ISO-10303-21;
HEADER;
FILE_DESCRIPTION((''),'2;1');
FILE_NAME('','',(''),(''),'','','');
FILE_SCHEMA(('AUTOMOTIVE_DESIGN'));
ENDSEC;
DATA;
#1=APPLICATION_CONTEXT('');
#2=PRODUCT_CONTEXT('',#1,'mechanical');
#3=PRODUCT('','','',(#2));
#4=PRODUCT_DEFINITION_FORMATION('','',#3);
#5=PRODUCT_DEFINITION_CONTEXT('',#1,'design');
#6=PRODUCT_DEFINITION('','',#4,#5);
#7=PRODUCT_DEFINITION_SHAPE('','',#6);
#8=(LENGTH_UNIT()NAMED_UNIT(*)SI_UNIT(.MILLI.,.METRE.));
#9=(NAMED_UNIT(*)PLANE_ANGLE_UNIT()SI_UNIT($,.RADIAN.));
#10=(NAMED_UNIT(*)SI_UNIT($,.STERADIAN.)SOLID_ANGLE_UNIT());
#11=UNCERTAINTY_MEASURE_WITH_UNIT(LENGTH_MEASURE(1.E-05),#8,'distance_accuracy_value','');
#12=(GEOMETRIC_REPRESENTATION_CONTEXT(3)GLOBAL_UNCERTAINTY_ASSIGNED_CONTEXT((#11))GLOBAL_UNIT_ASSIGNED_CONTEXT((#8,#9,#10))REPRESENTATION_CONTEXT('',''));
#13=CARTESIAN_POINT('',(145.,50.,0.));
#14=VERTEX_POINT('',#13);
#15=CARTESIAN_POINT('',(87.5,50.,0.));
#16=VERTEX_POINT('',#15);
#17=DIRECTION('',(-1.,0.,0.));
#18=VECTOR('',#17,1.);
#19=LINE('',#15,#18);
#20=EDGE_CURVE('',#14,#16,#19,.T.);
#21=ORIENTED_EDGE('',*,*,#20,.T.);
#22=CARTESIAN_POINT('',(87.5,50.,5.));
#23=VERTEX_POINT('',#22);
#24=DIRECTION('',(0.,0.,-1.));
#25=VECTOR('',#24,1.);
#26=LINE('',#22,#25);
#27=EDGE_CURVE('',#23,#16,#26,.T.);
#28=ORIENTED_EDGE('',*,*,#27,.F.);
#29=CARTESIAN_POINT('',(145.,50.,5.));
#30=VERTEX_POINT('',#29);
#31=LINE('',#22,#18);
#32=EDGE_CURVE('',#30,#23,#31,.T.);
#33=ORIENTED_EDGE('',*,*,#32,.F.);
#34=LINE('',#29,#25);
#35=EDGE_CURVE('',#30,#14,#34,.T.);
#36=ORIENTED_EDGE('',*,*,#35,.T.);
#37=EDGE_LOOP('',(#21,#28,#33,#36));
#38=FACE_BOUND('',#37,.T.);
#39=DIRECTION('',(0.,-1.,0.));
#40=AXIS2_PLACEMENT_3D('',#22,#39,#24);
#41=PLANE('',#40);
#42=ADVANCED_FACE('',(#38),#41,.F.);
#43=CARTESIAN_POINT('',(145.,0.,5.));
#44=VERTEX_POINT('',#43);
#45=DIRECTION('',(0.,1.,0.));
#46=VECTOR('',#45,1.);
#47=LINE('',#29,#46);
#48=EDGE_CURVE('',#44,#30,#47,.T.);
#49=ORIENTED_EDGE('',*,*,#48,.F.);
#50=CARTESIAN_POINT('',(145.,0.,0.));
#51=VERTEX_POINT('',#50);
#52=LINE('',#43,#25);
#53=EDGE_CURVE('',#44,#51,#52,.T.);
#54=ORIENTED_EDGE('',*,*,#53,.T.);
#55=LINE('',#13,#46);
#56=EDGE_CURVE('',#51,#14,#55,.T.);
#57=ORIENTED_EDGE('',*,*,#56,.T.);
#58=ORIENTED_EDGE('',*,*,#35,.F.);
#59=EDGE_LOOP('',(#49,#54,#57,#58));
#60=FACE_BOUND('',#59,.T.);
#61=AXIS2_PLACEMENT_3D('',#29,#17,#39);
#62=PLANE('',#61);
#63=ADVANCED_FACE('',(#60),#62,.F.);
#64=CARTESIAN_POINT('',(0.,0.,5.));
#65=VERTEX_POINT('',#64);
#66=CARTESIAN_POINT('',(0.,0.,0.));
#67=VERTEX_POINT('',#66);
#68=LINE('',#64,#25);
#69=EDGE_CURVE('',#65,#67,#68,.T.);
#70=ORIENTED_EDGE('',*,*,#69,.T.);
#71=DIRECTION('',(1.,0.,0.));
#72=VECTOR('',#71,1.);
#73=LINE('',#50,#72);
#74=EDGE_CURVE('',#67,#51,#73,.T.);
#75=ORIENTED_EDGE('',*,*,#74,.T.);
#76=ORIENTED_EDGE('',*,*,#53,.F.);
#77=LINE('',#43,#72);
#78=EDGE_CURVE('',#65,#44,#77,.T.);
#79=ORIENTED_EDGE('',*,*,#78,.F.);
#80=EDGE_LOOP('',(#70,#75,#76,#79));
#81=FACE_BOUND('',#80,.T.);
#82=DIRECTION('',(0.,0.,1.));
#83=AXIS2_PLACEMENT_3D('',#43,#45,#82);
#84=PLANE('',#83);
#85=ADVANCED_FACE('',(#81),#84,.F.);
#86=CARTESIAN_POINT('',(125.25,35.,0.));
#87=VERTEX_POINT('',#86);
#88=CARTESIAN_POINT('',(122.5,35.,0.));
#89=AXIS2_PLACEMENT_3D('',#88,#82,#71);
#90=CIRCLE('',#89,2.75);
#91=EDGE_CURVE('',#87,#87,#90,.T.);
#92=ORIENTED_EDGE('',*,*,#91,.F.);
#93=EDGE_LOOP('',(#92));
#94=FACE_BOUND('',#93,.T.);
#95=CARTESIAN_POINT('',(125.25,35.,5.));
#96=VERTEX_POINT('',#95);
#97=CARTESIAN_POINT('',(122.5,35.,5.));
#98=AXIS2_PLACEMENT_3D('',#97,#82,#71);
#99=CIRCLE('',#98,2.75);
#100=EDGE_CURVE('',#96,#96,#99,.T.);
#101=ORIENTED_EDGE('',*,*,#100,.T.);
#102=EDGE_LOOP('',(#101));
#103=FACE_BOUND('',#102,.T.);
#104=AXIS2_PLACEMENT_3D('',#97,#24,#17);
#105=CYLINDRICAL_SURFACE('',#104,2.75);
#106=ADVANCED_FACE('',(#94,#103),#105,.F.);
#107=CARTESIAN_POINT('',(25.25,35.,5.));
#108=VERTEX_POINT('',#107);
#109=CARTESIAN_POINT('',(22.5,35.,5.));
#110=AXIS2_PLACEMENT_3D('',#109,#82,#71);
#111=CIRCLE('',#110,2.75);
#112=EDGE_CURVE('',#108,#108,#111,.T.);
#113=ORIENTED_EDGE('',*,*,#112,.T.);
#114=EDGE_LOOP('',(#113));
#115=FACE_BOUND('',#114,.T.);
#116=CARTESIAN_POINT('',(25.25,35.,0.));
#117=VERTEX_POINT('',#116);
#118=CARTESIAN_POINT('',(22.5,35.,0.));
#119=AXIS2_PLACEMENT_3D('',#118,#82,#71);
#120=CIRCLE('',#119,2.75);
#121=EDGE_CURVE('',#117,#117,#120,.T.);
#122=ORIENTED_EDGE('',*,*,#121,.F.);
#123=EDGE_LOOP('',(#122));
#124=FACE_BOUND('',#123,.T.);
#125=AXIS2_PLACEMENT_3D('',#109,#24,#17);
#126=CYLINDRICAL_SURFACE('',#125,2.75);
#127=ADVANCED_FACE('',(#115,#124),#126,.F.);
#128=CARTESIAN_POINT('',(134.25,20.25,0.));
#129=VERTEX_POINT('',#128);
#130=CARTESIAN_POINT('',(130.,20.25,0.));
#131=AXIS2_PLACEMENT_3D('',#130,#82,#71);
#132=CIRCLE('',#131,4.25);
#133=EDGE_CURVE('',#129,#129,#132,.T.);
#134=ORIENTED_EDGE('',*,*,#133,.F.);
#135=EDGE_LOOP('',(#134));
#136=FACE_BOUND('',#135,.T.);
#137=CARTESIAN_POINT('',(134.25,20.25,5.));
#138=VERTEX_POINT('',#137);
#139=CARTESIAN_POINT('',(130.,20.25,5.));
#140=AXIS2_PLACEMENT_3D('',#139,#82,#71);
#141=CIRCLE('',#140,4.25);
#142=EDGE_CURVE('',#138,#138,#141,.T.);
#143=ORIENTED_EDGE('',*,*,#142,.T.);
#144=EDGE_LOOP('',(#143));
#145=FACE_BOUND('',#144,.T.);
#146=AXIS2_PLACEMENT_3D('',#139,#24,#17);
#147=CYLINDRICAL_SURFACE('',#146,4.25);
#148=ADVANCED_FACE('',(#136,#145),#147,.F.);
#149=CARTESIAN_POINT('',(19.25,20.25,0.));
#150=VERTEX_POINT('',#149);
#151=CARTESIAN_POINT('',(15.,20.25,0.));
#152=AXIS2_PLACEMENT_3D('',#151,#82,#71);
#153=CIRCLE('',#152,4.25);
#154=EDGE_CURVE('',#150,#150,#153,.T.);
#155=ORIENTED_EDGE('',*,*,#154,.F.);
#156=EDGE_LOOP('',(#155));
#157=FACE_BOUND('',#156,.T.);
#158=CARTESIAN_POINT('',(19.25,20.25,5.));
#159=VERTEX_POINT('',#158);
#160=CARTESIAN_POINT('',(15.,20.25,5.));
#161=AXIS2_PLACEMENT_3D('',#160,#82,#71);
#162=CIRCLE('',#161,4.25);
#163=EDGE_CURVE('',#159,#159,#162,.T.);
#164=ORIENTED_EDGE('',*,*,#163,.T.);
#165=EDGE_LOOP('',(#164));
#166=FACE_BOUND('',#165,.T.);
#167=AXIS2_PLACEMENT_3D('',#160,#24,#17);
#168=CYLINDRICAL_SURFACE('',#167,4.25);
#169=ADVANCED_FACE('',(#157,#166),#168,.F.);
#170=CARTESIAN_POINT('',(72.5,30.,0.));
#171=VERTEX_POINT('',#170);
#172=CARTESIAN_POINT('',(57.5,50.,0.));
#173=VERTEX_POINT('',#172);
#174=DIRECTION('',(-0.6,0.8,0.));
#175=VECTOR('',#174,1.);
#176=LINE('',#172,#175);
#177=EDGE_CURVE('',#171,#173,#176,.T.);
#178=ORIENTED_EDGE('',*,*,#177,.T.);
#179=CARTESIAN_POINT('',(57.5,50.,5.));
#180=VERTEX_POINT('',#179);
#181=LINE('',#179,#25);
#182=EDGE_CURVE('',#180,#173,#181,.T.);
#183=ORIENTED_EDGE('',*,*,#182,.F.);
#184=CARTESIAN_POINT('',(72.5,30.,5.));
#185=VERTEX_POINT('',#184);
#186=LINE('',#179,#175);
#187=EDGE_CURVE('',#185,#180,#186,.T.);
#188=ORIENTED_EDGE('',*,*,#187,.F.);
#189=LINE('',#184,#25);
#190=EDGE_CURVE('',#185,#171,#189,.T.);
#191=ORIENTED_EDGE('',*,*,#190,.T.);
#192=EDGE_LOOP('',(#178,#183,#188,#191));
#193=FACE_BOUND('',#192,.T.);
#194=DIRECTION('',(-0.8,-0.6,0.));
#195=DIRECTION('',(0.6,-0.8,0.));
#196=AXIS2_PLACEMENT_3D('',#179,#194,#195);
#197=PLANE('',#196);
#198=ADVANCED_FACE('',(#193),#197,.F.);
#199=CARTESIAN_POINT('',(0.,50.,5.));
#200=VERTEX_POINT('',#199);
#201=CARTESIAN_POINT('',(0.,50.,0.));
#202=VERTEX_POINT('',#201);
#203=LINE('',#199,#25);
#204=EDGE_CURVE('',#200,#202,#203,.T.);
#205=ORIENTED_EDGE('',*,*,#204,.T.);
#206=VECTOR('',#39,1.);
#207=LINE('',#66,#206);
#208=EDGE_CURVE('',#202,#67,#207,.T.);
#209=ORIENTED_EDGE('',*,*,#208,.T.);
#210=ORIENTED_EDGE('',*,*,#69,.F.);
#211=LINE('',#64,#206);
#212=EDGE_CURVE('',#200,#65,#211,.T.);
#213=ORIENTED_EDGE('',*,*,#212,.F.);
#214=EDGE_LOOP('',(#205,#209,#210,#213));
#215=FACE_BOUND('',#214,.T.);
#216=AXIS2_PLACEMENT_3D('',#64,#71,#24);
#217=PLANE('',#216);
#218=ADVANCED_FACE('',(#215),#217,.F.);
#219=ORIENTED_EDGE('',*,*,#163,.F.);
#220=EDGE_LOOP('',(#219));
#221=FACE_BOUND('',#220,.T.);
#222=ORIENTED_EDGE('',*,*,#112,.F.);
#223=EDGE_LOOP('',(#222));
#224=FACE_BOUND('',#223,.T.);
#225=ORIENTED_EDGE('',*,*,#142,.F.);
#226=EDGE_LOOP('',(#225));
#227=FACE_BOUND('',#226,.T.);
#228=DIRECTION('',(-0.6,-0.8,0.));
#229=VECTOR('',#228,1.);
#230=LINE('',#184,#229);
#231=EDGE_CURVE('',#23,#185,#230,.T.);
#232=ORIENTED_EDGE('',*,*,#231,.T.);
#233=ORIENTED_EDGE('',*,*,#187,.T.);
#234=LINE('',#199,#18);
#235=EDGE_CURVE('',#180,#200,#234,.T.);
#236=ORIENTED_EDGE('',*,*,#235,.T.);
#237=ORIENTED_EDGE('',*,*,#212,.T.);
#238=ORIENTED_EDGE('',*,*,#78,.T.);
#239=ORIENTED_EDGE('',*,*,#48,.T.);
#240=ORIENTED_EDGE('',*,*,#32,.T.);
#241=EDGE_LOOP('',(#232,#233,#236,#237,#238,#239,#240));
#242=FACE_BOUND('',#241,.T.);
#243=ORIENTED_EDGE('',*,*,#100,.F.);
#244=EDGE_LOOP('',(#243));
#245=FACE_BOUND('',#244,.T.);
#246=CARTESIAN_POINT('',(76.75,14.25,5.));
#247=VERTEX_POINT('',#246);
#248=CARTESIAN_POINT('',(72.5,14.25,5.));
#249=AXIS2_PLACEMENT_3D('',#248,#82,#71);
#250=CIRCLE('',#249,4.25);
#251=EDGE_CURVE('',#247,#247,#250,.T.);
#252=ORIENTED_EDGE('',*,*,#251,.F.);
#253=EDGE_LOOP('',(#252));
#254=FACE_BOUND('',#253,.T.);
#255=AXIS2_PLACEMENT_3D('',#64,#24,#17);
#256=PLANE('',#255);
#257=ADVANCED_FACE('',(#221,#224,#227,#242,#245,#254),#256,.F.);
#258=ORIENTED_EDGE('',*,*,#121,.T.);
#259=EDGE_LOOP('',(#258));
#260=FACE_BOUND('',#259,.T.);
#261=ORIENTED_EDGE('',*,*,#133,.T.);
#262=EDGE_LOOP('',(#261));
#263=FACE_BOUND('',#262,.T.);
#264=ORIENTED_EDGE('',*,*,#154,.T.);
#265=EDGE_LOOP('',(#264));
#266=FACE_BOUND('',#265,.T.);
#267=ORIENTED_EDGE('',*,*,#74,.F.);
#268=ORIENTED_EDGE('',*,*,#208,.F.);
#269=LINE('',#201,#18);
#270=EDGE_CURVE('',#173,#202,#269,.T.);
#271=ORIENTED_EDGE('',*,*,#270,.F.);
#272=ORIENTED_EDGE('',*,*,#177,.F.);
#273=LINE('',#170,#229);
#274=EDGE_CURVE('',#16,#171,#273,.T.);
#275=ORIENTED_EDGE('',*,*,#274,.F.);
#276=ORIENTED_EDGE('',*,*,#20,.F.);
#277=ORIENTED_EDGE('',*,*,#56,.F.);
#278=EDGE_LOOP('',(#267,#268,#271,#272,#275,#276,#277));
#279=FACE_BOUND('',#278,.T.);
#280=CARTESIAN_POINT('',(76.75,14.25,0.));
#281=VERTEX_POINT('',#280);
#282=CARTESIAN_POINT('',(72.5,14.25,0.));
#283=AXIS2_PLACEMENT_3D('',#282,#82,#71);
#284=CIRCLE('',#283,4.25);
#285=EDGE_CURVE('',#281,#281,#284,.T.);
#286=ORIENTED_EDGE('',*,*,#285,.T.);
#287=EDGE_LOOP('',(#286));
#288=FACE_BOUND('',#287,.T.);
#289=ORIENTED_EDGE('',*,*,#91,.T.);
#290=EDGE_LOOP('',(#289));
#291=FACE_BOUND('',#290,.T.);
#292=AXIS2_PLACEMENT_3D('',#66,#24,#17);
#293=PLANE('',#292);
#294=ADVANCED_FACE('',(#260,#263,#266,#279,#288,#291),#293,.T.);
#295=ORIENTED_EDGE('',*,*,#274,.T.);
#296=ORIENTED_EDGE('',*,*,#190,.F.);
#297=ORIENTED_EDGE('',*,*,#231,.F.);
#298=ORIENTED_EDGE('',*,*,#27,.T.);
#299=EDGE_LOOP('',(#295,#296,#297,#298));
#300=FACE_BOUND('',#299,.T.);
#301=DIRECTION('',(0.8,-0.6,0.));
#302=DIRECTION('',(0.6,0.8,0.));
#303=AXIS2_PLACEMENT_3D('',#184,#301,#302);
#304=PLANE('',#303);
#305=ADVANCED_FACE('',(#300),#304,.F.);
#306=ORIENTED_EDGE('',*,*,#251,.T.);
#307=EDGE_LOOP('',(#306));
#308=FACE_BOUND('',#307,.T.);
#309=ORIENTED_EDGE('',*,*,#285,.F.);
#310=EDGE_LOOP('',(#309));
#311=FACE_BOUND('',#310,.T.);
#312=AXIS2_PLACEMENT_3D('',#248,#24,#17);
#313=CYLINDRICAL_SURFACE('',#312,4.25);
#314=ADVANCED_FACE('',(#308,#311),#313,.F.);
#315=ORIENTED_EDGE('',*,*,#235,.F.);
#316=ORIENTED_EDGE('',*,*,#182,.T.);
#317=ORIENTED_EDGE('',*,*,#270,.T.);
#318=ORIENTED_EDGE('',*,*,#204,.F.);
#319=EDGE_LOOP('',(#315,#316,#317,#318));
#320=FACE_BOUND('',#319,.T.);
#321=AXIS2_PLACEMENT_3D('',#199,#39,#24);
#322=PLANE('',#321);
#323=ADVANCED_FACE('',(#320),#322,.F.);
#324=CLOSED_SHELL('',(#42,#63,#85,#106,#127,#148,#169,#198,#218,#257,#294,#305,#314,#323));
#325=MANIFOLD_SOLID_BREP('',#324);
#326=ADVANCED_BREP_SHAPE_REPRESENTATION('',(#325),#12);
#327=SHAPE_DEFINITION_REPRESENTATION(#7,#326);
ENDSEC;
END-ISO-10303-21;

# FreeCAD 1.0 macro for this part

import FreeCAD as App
import Part
import Sketcher
from FreeCAD import Vector
Q = App.Units.Quantity

doc = App.newDocument("Part")
body = doc.addObject("PartDesign::Body", "Body")

# Sketch on XY plane
sketch1 = doc.addObject("Sketcher::SketchObject", "Sketch")
body.addObject(sketch1)
sketch1.AttachmentSupport = (doc.XY_Plane, [""])
sketch1.MapMode = "FlatFace"
sketch1.addGeometry([
    Part.LineSegment(Vector(0, 50, 0), Vector(0, 0, 0)),  # 0
    Part.LineSegment(Vector(0, 0, 0), Vector(145, 0, 0)),  # 1
    Part.LineSegment(Vector(145, 0, 0), Vector(145, 50, 0)),  # 2
    Part.LineSegment(Vector(145, 50, 0), Vector(87.5, 50, 0)),  # 3
    Part.LineSegment(Vector(87.5, 50, 0), Vector(72.5, 30, 0)),  # 4
    Part.LineSegment(Vector(72.5, 30, 0), Vector(57.5, 50, 0)),  # 5
    Part.LineSegment(Vector(57.5, 50, 0), Vector(0, 50, 0)),  # 6
    Part.Circle(Vector(130, 20.2, 0), Vector(0, 0, 1), 4.2),  # 7
    Part.Circle(Vector(72.5, 14.2, 0), Vector(0, 0, 1), 4.2),  # 8
    Part.Circle(Vector(15, 20.2, 0), Vector(0, 0, 1), 4.2),  # 9
    Part.Circle(Vector(122.5, 35, 0), Vector(0, 0, 1), 2.8),  # 10
    Part.Circle(Vector(22.5, 35, 0), Vector(0, 0, 1), 2.8),  # 11
], False)
sketch1.addConstraint([
    Sketcher.Constraint("Coincident", 0, 2, 1, 1),
    Sketcher.Constraint("Coincident", 1, 2, 2, 1),
    Sketcher.Constraint("Coincident", 2, 2, 3, 1),
    Sketcher.Constraint("Coincident", 3, 2, 4, 1),
    Sketcher.Constraint("Coincident", 4, 2, 5, 1),
    Sketcher.Constraint("Coincident", 5, 2, 6, 1),
    Sketcher.Constraint("Coincident", 6, 2, 0, 1),
    Sketcher.Constraint("Vertical", 0),
    Sketcher.Constraint("Horizontal", 1),
    Sketcher.Constraint("Vertical", 2),
    Sketcher.Constraint("Horizontal", 3),
    Sketcher.Constraint("Horizontal", 6),
    Sketcher.Constraint("Coincident", 0, 2, -1, 1),
    Sketcher.Constraint("Equal", 7, 8),
    Sketcher.Constraint("Equal", 8, 9),
    Sketcher.Constraint("Equal", 10, 11),
    Sketcher.Constraint("Horizontal", 7, 3, 9, 3),
    Sketcher.Constraint("Horizontal", 10, 3, 11, 3),
    Sketcher.Constraint("Horizontal", 3, 2, 5, 2),
    Sketcher.Constraint("Vertical", 8, 3, 4, 2),
    Sketcher.Constraint("Equal", 3, 6),
    Sketcher.Constraint("Equal", 4, 5),
    Sketcher.Constraint("Diameter", 7, Q("8.5 mm")),
    Sketcher.Constraint("Diameter", 10, Q("5.5 mm")),
    Sketcher.Constraint("DistanceX", 1, 1, 1, 2, Q("145 mm")),
    Sketcher.Constraint("DistanceY", 0, 2, 0, 1, Q("50 mm")),
    Sketcher.Constraint("Distance", 4, Q("25 mm")),
    Sketcher.Constraint("DistanceX", 3, 2, 3, 1, Q("57.5 mm")),
    Sketcher.Constraint("DistanceX", -1, 1, 7, 3, Q("130 mm")),
    Sketcher.Constraint("DistanceX", -1, 1, 9, 3, Q("15 mm")),
    Sketcher.Constraint("DistanceY", -1, 1, 10, 3, Q("35 mm")),
    Sketcher.Constraint("DistanceY", 8, 3, 7, 3, Q("6 mm")),
    Sketcher.Constraint("DistanceX", 8, 3, 10, 3, Q("50 mm")),
    Sketcher.Constraint("DistanceX", 11, 3, 8, 3, Q("50 mm")),
    Sketcher.Constraint("DistanceY", -1, 1, 7, 3, Q("20.25 mm")),
])
pad1 = doc.addObject("PartDesign::Pad", "Pad")
body.addObject(pad1)
pad1.Profile = sketch1
pad1.Length = 5

doc.recompute()
